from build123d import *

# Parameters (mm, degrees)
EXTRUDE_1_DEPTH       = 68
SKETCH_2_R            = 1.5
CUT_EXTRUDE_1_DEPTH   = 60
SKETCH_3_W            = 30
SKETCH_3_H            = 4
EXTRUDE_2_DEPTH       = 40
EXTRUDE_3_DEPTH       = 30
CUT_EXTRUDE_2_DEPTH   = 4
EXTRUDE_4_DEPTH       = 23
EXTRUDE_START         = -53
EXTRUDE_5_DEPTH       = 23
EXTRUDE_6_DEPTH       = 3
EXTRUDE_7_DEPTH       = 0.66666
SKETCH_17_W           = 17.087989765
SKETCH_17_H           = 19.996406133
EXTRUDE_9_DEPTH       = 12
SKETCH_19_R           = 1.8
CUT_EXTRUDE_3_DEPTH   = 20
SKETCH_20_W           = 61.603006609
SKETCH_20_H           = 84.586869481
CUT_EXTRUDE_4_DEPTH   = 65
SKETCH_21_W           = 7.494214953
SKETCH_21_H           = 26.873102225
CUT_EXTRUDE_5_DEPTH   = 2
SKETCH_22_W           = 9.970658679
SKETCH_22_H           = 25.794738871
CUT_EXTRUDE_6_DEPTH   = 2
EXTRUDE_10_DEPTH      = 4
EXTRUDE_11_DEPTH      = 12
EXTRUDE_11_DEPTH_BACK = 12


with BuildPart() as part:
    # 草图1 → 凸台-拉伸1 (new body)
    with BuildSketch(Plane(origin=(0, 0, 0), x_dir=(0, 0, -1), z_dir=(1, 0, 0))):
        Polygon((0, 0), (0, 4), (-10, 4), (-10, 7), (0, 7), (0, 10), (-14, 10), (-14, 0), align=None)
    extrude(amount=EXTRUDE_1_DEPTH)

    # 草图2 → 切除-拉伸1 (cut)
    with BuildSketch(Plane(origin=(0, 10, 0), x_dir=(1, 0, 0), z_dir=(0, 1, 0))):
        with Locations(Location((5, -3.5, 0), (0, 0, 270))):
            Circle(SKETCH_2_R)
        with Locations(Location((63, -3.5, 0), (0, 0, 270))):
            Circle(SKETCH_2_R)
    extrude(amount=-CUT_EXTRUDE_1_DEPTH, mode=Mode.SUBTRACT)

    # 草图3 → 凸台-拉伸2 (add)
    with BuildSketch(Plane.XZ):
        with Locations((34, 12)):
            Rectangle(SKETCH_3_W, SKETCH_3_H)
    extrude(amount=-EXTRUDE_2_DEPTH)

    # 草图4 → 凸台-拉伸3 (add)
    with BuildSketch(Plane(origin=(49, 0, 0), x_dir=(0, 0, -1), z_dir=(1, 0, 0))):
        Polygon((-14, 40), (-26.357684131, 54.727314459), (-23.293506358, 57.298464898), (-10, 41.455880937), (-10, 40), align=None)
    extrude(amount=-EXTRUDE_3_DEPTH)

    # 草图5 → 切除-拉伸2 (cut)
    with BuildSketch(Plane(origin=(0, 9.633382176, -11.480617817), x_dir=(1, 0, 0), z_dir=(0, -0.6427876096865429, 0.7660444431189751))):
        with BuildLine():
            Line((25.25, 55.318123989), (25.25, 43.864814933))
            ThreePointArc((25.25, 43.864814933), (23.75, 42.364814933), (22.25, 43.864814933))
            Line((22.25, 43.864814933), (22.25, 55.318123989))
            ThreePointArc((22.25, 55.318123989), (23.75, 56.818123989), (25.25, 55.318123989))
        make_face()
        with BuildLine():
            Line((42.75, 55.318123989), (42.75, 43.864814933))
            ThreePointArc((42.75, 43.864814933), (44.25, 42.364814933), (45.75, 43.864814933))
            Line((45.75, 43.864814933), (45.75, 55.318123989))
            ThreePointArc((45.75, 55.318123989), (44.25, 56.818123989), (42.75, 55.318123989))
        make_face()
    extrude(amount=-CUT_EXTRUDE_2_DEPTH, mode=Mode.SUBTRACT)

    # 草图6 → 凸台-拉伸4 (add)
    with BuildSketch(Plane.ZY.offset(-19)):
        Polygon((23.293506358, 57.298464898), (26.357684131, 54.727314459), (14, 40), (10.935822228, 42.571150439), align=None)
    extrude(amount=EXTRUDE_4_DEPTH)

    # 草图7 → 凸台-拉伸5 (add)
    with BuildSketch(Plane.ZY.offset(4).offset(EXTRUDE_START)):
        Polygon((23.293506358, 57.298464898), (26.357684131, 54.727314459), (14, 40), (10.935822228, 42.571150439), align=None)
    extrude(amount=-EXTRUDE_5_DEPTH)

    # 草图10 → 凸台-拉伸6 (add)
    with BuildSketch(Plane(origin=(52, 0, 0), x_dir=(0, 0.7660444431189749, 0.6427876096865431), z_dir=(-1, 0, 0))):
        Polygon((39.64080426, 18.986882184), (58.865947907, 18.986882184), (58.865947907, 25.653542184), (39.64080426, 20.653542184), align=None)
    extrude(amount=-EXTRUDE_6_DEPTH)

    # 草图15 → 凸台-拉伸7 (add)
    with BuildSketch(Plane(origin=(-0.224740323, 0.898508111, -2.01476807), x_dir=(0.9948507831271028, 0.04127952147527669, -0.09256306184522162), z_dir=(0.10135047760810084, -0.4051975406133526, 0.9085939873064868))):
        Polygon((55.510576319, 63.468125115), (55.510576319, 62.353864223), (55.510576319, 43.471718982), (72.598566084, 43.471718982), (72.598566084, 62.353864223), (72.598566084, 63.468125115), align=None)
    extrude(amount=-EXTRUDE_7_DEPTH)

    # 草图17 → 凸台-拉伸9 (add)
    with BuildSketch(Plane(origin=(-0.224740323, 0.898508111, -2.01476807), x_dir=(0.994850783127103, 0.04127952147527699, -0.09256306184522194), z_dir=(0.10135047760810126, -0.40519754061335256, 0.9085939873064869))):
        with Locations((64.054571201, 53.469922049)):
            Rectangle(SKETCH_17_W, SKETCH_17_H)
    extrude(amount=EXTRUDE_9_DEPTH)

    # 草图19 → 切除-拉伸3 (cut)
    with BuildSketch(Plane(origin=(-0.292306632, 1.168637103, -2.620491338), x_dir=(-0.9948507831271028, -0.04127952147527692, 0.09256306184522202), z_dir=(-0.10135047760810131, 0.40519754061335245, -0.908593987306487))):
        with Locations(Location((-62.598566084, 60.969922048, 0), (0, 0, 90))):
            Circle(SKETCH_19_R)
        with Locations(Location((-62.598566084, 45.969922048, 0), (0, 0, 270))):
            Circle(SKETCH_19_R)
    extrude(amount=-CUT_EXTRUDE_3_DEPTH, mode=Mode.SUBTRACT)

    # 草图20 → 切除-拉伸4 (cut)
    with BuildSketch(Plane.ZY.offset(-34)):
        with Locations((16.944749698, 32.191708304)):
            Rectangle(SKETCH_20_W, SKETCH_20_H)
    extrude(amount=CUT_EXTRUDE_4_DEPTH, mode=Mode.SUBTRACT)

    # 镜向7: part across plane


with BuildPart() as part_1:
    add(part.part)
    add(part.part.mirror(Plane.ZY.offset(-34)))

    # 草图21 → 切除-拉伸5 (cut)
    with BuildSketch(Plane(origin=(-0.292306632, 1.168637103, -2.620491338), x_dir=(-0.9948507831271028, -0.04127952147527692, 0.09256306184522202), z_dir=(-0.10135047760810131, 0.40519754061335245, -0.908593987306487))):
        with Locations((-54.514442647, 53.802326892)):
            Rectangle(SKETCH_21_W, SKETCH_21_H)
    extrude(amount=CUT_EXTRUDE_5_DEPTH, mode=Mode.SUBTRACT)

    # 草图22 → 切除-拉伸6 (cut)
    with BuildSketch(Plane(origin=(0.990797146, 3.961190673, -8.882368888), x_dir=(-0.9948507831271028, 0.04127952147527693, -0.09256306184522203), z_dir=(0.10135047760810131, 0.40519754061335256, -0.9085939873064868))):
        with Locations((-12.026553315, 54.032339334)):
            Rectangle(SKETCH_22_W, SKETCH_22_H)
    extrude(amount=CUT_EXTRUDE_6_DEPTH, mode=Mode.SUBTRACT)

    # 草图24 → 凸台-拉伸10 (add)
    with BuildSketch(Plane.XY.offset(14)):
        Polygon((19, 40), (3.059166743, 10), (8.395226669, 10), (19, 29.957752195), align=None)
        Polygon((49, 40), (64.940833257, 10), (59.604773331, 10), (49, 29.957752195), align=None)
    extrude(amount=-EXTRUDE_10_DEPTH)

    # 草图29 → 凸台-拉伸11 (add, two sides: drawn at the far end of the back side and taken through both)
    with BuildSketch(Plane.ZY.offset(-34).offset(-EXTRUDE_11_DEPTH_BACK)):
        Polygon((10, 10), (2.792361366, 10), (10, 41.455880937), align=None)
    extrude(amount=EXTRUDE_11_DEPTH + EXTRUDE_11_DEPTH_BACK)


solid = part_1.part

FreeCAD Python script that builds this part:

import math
import FreeCAD as App
import Part
import Sketcher

V = App.Vector
Q = App.Units.Quantity

doc = App.newDocument("Part")
body = doc.addObject("PartDesign::Body", "Body")

sketch1 = body.newObject("Sketcher::SketchObject", "Sketch")
sketch1.AttachmentSupport = (doc.getObject("YZ_Plane"), [""])
sketch1.MapMode = "FlatFace"
sketch1.addGeometry(Part.LineSegment(V(0, 0, 0), V(4, 0, 0)), False)
sketch1.addGeometry(Part.LineSegment(V(4, 0, 0), V(4, 10, 0)), False)
sketch1.addGeometry(Part.LineSegment(V(4, 10, 0), V(7, 10, 0)), False)
sketch1.addGeometry(Part.LineSegment(V(7, 10, 0), V(7, 0, 0)), False)
sketch1.addGeometry(Part.LineSegment(V(7, 0, 0), V(10, 0, 0)), False)
sketch1.addGeometry(Part.LineSegment(V(10, 0, 0), V(10, 14, 0)), False)
sketch1.addGeometry(Part.LineSegment(V(10, 14, 0), V(0, 14, 0)), False)
sketch1.addGeometry(Part.LineSegment(V(0, 14, 0), V(0, 0, 0)), False)
sketch1.addConstraint(Sketcher.Constraint("Coincident", 0, 2, 1, 1))
sketch1.addConstraint(Sketcher.Constraint("Coincident", 1, 2, 2, 1))
sketch1.addConstraint(Sketcher.Constraint("Coincident", 2, 2, 3, 1))
sketch1.addConstraint(Sketcher.Constraint("Coincident", 3, 2, 4, 1))
sketch1.addConstraint(Sketcher.Constraint("Coincident", 4, 2, 5, 1))
sketch1.addConstraint(Sketcher.Constraint("Coincident", 5, 2, 6, 1))
sketch1.addConstraint(Sketcher.Constraint("Coincident", 6, 2, 7, 1))
sketch1.addConstraint(Sketcher.Constraint("Coincident", 7, 2, 0, 1))
sketch1.addConstraint(Sketcher.Constraint("Horizontal", 0))
sketch1.addConstraint(Sketcher.Constraint("Vertical", 1))
sketch1.addConstraint(Sketcher.Constraint("Horizontal", 2))
sketch1.addConstraint(Sketcher.Constraint("Vertical", 3))
sketch1.addConstraint(Sketcher.Constraint("Horizontal", 4))
sketch1.addConstraint(Sketcher.Constraint("Vertical", 5))
sketch1.addConstraint(Sketcher.Constraint("Horizontal", 6))
sketch1.addConstraint(Sketcher.Constraint("Vertical", 7))
sketch1.addConstraint(Sketcher.Constraint("Coincident", 7, 2, -1, 1))
sketch1.addConstraint(Sketcher.Constraint("PointOnObject", 3, 2, -1))
sketch1.addConstraint(Sketcher.Constraint("Equal", 2, 4))
sketch1.addConstraint(Sketcher.Constraint("Equal", 6, 1))
sketch1.addConstraint(Sketcher.Constraint("DistanceX", 0, 1, 0, 2, 4.0))
sketch1.addConstraint(Sketcher.Constraint("DistanceX", 2, 1, 2, 2, 3.0))
sketch1.addConstraint(Sketcher.Constraint("DistanceY", 5, 1, 5, 2, 14.0))
pad1 = body.newObject("PartDesign::Pad", "Pad")
pad1.Profile = sketch1
pad1.Length = 68

sketch2 = body.newObject("Sketcher::SketchObject", "Sketch001")
sketch2.AttachmentSupport = (doc.getObject("XZ_Plane"), [""])
sketch2.MapMode = "FlatFace"
sketch2.AttachmentOffset = App.Placement(V(0, 0, -10), App.Rotation())
sketch2.addGeometry(Part.Circle(V(5, 3.5, 0), V(0, 0, 1), 1.5), False)
sketch2.addGeometry(Part.Circle(V(63, 3.5, 0), V(0, 0, 1), 1.5), False)
sketch2.addConstraint(Sketcher.Constraint("Equal", 0, 1))
sketch2.addConstraint(Sketcher.Constraint("Horizontal", 0, 3, 1, 3))
sketch2.addConstraint(Sketcher.Constraint("Diameter", 0, 3.0))
sketch2.addConstraint(Sketcher.Constraint("DistanceX", -1, 1, 0, 3, 5.0))
sketch2.addConstraint(Sketcher.Constraint("DistanceX", -1, 1, 1, 3, 63.0))
sketch2.addConstraint(Sketcher.Constraint("DistanceY", -1, 1, 0, 3, 3.5))
pocket1 = body.newObject("PartDesign::Pocket", "Pocket")
pocket1.Profile = sketch2
pocket1.Length = 60
pocket1.Reversed = True

sketch3 = body.newObject("Sketcher::SketchObject", "Sketch002")
sketch3.AttachmentSupport = (doc.getObject("XZ_Plane"), [""])
sketch3.MapMode = "FlatFace"
sketch3.addGeometry(Part.LineSegment(V(19, 14, 0), V(19, 10, 0)), False)
sketch3.addGeometry(Part.LineSegment(V(19, 10, 0), V(49, 10, 0)), False)
sketch3.addGeometry(Part.LineSegment(V(49, 10, 0), V(49, 14, 0)), False)
sketch3.addGeometry(Part.LineSegment(V(49, 14, 0), V(19, 14, 0)), False)
sketch3.addConstraint(Sketcher.Constraint("Coincident", 0, 2, 1, 1))
sketch3.addConstraint(Sketcher.Constraint("Coincident", 1, 2, 2, 1))
sketch3.addConstraint(Sketcher.Constraint("Coincident", 2, 2, 3, 1))
sketch3.addConstraint(Sketcher.Constraint("Coincident", 3, 2, 0, 1))
sketch3.addConstraint(Sketcher.Constraint("Vertical", 0))
sketch3.addConstraint(Sketcher.Constraint("Horizontal", 1))
sketch3.addConstraint(Sketcher.Constraint("Vertical", 2))
sketch3.addConstraint(Sketcher.Constraint("Horizontal", 3))
sketch3.addConstraint(Sketcher.Constraint("DistanceX", 1, 1, 1, 2, 30.0))
sketch3.addConstraint(Sketcher.Constraint("DistanceY", 0, 2, 0, 1, 4.0))
sketch3.addConstraint(Sketcher.Constraint("DistanceX", -1, 1, 0, 2, 19.0))
sketch3.addConstraint(Sketcher.Constraint("DistanceY", -1, 1, 0, 2, 10.0))
pad2 = body.newObject("PartDesign::Pad", "Pad001")
pad2.Profile = sketch3
pad2.Length = 40
pad2.Reversed = True

sketch4 = body.newObject("Sketcher::SketchObject", "Sketch003")
sketch4.AttachmentSupport = (doc.getObject("YZ_Plane"), [""])
sketch4.MapMode = "FlatFace"
sketch4.AttachmentOffset = App.Placement(V(0, 0, 49), App.Rotation())
sketch4.addGeometry(Part.LineSegment(V(54.7, 26.4, 0), V(40, 14, 0)), False)
sketch4.addGeometry(Part.LineSegment(V(40, 14, 0), V(40, 10, 0)), False)
sketch4.addGeometry(Part.LineSegment(V(40, 10, 0), V(41.5, 10, 0)), False)
sketch4.addGeometry(Part.LineSegment(V(41.5, 10, 0), V(57.3, 23.3, 0)), False)
sketch4.addGeometry(Part.LineSegment(V(57.3, 23.3, 0), V(54.7, 26.4, 0)), False)
sketch4.addConstraint(Sketcher.Constraint("Coincident", 0, 2, 1, 1))
sketch4.addConstraint(Sketcher.Constraint("Coincident", 1, 2, 2, 1))
sketch4.addConstraint(Sketcher.Constraint("Coincident", 2, 2, 3, 1))
sketch4.addConstraint(Sketcher.Constraint("Coincident", 3, 2, 4, 1))
sketch4.addConstraint(Sketcher.Constraint("Coincident", 4, 2, 0, 1))
sketch4.addConstraint(Sketcher.Constraint("Vertical", 1))
sketch4.addConstraint(Sketcher.Constraint("Horizontal", 2))
sketch4.addConstraint(Sketcher.Constraint("Parallel", 0, 3))
sketch4.addConstraint(Sketcher.Constraint("Perpendicular", 3, 4))
sketch4.addConstraint(Sketcher.Constraint("DistanceY", 1, 2, 1, 1, 4.0))
sketch4.addConstraint(Sketcher.Constraint("Angle", 0, Q("-140 deg")))
sketch4.addConstraint(Sketcher.Constraint("Distance", 4, 4.0))
sketch4.addConstraint(Sketcher.Constraint("DistanceX", -1, 1, 0, 2, 40.0))
sketch4.addConstraint(Sketcher.Constraint("DistanceY", -1, 1, 0, 2, 14.0))
sketch4.addConstraint(Sketcher.Constraint("Distance", 0, 19.225144))
pad3 = body.newObject("PartDesign::Pad", "Pad002")
pad3.Profile = sketch4
pad3.Length = 30
pad3.Reversed = True

sketch5 = body.newObject("Sketcher::SketchObject", "Sketch004")
sketch5.Placement = App.Placement(V(0, 9.633382, -11.480618), App.Rotation(V(1, 0, 0), V(0, 0.766044443, 0.64278761), V(0, -0.64278761, 0.766044443), "ZXY"))
sketch5.addGeometry(Part.LineSegment(V(25.2, 43.9, 0), V(25.2, 55.3, 0)), False)
sketch5.addGeometry(Part.ArcOfCircle(Part.Circle(V(23.8, 55.3, 0), V(0, 0, 1), 1.5), math.radians(0), math.radians(180)), False)
sketch5.addGeometry(Part.LineSegment(V(22.2, 55.3, 0), V(22.2, 43.9, 0)), False)
sketch5.addGeometry(Part.ArcOfCircle(Part.Circle(V(23.8, 43.9, 0), V(0, 0, 1), 1.5), math.radians(180), math.radians(360)), False)
sketch5.addGeometry(Part.LineSegment(V(42.8, 55.3, 0), V(42.8, 43.9, 0)), False)
sketch5.addGeometry(Part.ArcOfCircle(Part.Circle(V(44.2, 43.9, 0), V(0, 0, 1), 1.5), math.radians(180), math.radians(360)), False)
sketch5.addGeometry(Part.LineSegment(V(45.8, 43.9, 0), V(45.8, 55.3, 0)), False)
sketch5.addGeometry(Part.ArcOfCircle(Part.Circle(V(44.2, 55.3, 0), V(0, 0, 1), 1.5), math.radians(0), math.radians(180)), False)
sketch5.addConstraint(Sketcher.Constraint("Tangent", 0, 2, 1, 1))
sketch5.addConstraint(Sketcher.Constraint("Tangent", 1, 2, 2, 1))
sketch5.addConstraint(Sketcher.Constraint("Tangent", 2, 2, 3, 1))
sketch5.addConstraint(Sketcher.Constraint("Tangent", 3, 2, 0, 1))
sketch5.addConstraint(Sketcher.Constraint("Tangent", 4, 2, 5, 1))
sketch5.addConstraint(Sketcher.Constraint("Tangent", 5, 2, 6, 1))
sketch5.addConstraint(Sketcher.Constraint("Tangent", 6, 2, 7, 1))
sketch5.addConstraint(Sketcher.Constraint("Tangent", 7, 2, 4, 1))
sketch5.addConstraint(Sketcher.Constraint("Vertical", 0))
sketch5.addConstraint(Sketcher.Constraint("Vertical", 2))
sketch5.addConstraint(Sketcher.Constraint("Vertical", 4))
sketch5.addConstraint(Sketcher.Constraint("Vertical", 6))
sketch5.addConstraint(Sketcher.Constraint("Equal", 3, 5))
sketch5.addConstraint(Sketcher.Constraint("Horizontal", 3, 3, 5, 3))
sketch5.addConstraint(Sketcher.Constraint("Horizontal", 1, 3, 7, 3))
sketch5.addConstraint(Sketcher.Constraint("Radius", 1, 1.5))
sketch5.addConstraint(Sketcher.Constraint("DistanceX", 0, 2, 7, 3, 19.0))
sketch5.addConstraint(Sketcher.Constraint("DistanceX", -1, 1, 1, 3, 23.75))
sketch5.addConstraint(Sketcher.Constraint("DistanceY", 0, 1, 0, 2, 11.453309))
sketch5.addConstraint(Sketcher.Constraint("DistanceY", -1, 1, 1, 3, 55.318124))
pocket2 = body.newObject("PartDesign::Pocket", "Pocket001")
pocket2.Profile = sketch5
pocket2.Length = 4

sketch6 = body.newObject("Sketcher::SketchObject", "Sketch005")
sketch6.AttachmentSupport = (doc.getObject("YZ_Plane"), [""])
sketch6.MapMode = "FlatFace"
sketch6.AttachmentOffset = App.Placement(V(0, 0, 19), App.Rotation())
sketch6.addGeometry(Part.LineSegment(V(54.7, 26.4, 0), V(57.3, 23.3, 0)), False)
sketch6.addGeometry(Part.LineSegment(V(57.3, 23.3, 0), V(42.6, 10.9, 0)), False)
sketch6.addGeometry(Part.LineSegment(V(42.6, 10.9, 0), V(40, 14, 0)), False)
sketch6.addGeometry(Part.LineSegment(V(40, 14, 0), V(54.7, 26.4, 0)), False)
sketch6.addConstraint(Sketcher.Constraint("Coincident", 0, 2, 1, 1))
sketch6.addConstraint(Sketcher.Constraint("Coincident", 1, 2, 2, 1))
sketch6.addConstraint(Sketcher.Constraint("Coincident", 2, 2, 3, 1))
sketch6.addConstraint(Sketcher.Constraint("Coincident", 3, 2, 0, 1))
sketch6.addConstraint(Sketcher.Constraint("Perpendicular", 0, 1))
sketch6.addConstraint(Sketcher.Constraint("Perpendicular", 1, 2))
sketch6.addConstraint(Sketcher.Constraint("Perpendicular", 2, 3))
sketch6.addConstraint(Sketcher.Constraint("Angle", 0, Q("-50 deg")))
sketch6.addConstraint(Sketcher.Constraint("Distance", 0, 4.0))
sketch6.addConstraint(Sketcher.Constraint("DistanceX", -1, 1, 2, 2, 40.0))
sketch6.addConstraint(Sketcher.Constraint("DistanceY", -1, 1, 2, 2, 14.0))
sketch6.addConstraint(Sketcher.Constraint("DistanceY", 1, 2, 3, 2, 15.421862))
pad4 = body.newObject("PartDesign::Pad", "Pad003")
pad4.Profile = sketch6
pad4.Length = 23
pad4.Reversed = True

sketch7 = body.newObject("Sketcher::SketchObject", "Sketch006")
sketch7.AttachmentSupport = (doc.getObject("YZ_Plane"), [""])
sketch7.MapMode = "FlatFace"
sketch7.AttachmentOffset = App.Placement(V(0, 0, 49), App.Rotation())
sketch7.addGeometry(Part.LineSegment(V(54.7, 26.4, 0), V(57.3, 23.3, 0)), False)
sketch7.addGeometry(Part.LineSegment(V(57.3, 23.3, 0), V(42.6, 10.9, 0)), False)
sketch7.addGeometry(Part.LineSegment(V(42.6, 10.9, 0), V(40, 14, 0)), False)
sketch7.addGeometry(Part.LineSegment(V(40, 14, 0), V(54.7, 26.4, 0)), False)
sketch7.addConstraint(Sketcher.Constraint("Coincident", 0, 2, 1, 1))
sketch7.addConstraint(Sketcher.Constraint("Coincident", 1, 2, 2, 1))
sketch7.addConstraint(Sketcher.Constraint("Coincident", 2, 2, 3, 1))
sketch7.addConstraint(Sketcher.Constraint("Coincident", 3, 2, 0, 1))
sketch7.addConstraint(Sketcher.Constraint("Perpendicular", 0, 1))
sketch7.addConstraint(Sketcher.Constraint("Perpendicular", 1, 2))
sketch7.addConstraint(Sketcher.Constraint("Perpendicular", 2, 3))
sketch7.addConstraint(Sketcher.Constraint("Angle", 0, Q("-50 deg")))
sketch7.addConstraint(Sketcher.Constraint("Distance", 0, 4.0))
sketch7.addConstraint(Sketcher.Constraint("DistanceX", -1, 1, 2, 2, 40.0))
sketch7.addConstraint(Sketcher.Constraint("DistanceY", -1, 1, 2, 2, 14.0))
sketch7.addConstraint(Sketcher.Constraint("DistanceY", 1, 2, 3, 2, 15.421862))
pad5 = body.newObject("PartDesign::Pad", "Pad004")
pad5.Profile = sketch7
pad5.Length = 23

sketch8 = body.newObject("Sketcher::SketchObject", "Sketch007")
sketch8.AttachmentSupport = (doc.getObject("YZ_Plane"), [""])
sketch8.MapMode = "FlatFace"
sketch8.AttachmentOffset = App.Placement(V(0, 0, 52), App.Rotation())
sketch8.addGeometry(Part.LineSegment(V(42.6, 10.9, 0), V(57.3, 23.3, 0)), False)
sketch8.addGeometry(Part.LineSegment(V(57.3, 23.3, 0), V(61.6, 18.2, 0)), False)
sketch8.addGeometry(Part.LineSegment(V(61.6, 18.2, 0), V(43.6, 9.7, 0)), False)
sketch8.addGeometry(Part.LineSegment(V(43.6, 9.7, 0), V(42.6, 10.9, 0)), False)
sketch8.addConstraint(Sketcher.Constraint("Coincident", 0, 2, 1, 1))
sketch8.addConstraint(Sketcher.Constraint("Coincident", 1, 2, 2, 1))
sketch8.addConstraint(Sketcher.Constraint("Coincident", 2, 2, 3, 1))
sketch8.addConstraint(Sketcher.Constraint("Coincident", 3, 2, 0, 1))
sketch8.addConstraint(Sketcher.Constraint("Perpendicular", 0, 1))
sketch8.addConstraint(Sketcher.Constraint("Parallel", 1, 3))
sketch8.addConstraint(Sketcher.Constraint("Angle", 0, Q("40 deg")))
sketch8.addConstraint(Sketcher.Constraint("Distance", 1, 6.66666))
sketch8.addConstraint(Sketcher.Constraint("Distance", 3, 1.66666))
sketch8.addConstraint(Sketcher.Constraint("DistanceX", -1, 1, 1, 2, 61.583711))
sketch8.addConstraint(Sketcher.Constraint("DistanceY", -1, 1, 1, 2, 18.186549))
sketch8.addConstraint(Sketcher.Constraint("DistanceX", -1, 1, 2, 2, 43.642459))
pad6 = body.newObject("PartDesign::Pad", "Pad005")
pad6.Profile = sketch8
pad6.Length = 3

sketch9 = body.newObject("Sketcher::SketchObject", "Sketch008")
sketch9.Placement = App.Placement(V(-0.22474, 0.898508, -2.014768), App.Rotation(V(0.994850783, 0.041279521, -0.092563062), V(0.000000001, 0.91329675, 0.40729479), V(0.101350478, -0.405197541, 0.908593987), "ZXY"))
sketch9.addGeometry(Part.LineSegment(V(56, 63, 0), V(56, 43, 0)), False)
sketch9.addGeometry(Part.LineSegment(V(56, 43, 0), V(73, 43, 0)), False)
sketch9.addGeometry(Part.LineSegment(V(73, 43, 0), V(73, 63, 0)), False)
sketch9.addGeometry(Part.LineSegment(V(73, 63, 0), V(56, 63, 0)), False)
sketch9.addConstraint(Sketcher.Constraint("Coincident", 0, 2, 1, 1))
sketch9.addConstraint(Sketcher.Constraint("Coincident", 1, 2, 2, 1))
sketch9.addConstraint(Sketcher.Constraint("Coincident", 2, 2, 3, 1))
sketch9.addConstraint(Sketcher.Constraint("Coincident", 3, 2, 0, 1))
sketch9.addConstraint(Sketcher.Constraint("Vertical", 0))
sketch9.addConstraint(Sketcher.Constraint("Horizontal", 1))
sketch9.addConstraint(Sketcher.Constraint("Vertical", 2))
sketch9.addConstraint(Sketcher.Constraint("Horizontal", 3))
sketch9.addConstraint(Sketcher.Constraint("DistanceX", 1, 1, 1, 2, 17.08799))
sketch9.addConstraint(Sketcher.Constraint("DistanceY", 0, 2, 0, 1, 19.996406))
sketch9.addConstraint(Sketcher.Constraint("DistanceY", -1, 1, 0, 2, 43.471719))
sketch9.addConstraint(Sketcher.Constraint("DistanceX", -1, 1, 0, 2, 55.510576))
pad7 = body.newObject("PartDesign::Pad", "Pad006")
pad7.Profile = sketch9
pad7.Length = 0.66666
pad7.Reversed = True

sketch10 = body.newObject("Sketcher::SketchObject", "Sketch009")
sketch10.Placement = App.Placement(V(-0.22474, 0.898508, -2.014768), App.Rotation(V(0.994850783, 0.041279521, -0.092563062), V(0.000000001, 0.91329675, 0.40729479), V(0.101350478, -0.405197541, 0.908593987), "ZXY"))
sketch10.addGeometry(Part.LineSegment(V(56, 63, 0), V(56, 43, 0)), False)
sketch10.addGeometry(Part.LineSegment(V(56, 43, 0), V(73, 43, 0)), False)
sketch10.addGeometry(Part.LineSegment(V(73, 43, 0), V(73, 63, 0)), False)
sketch10.addGeometry(Part.LineSegment(V(73, 63, 0), V(56, 63, 0)), False)
sketch10.addConstraint(Sketcher.Constraint("Coincident", 0, 2, 1, 1))
sketch10.addConstraint(Sketcher.Constraint("Coincident", 1, 2, 2, 1))
sketch10.addConstraint(Sketcher.Constraint("Coincident", 2, 2, 3, 1))
sketch10.addConstraint(Sketcher.Constraint("Coincident", 3, 2, 0, 1))
sketch10.addConstraint(Sketcher.Constraint("Vertical", 0))
sketch10.addConstraint(Sketcher.Constraint("Horizontal", 1))
sketch10.addConstraint(Sketcher.Constraint("Vertical", 2))
sketch10.addConstraint(Sketcher.Constraint("Horizontal", 3))
sketch10.addConstraint(Sketcher.Constraint("DistanceX", 1, 1, 1, 2, 17.08799))
sketch10.addConstraint(Sketcher.Constraint("DistanceY", 0, 2, 0, 1, 19.996406))
sketch10.addConstraint(Sketcher.Constraint("DistanceY", -1, 1, 0, 2, 43.471719))
sketch10.addConstraint(Sketcher.Constraint("DistanceX", -1, 1, 0, 2, 55.510576))
pad8 = body.newObject("PartDesign::Pad", "Pad007")
pad8.Profile = sketch10
pad8.Length = 12

sketch11 = body.newObject("Sketcher::SketchObject", "Sketch010")
sketch11.Placement = App.Placement(V(-0.292307, 1.168637, -2.620491), App.Rotation(V(-0.994850783, -0.041279521, 0.092563062), V(0.000000001, 0.91329675, 0.40729479), V(-0.101350478, 0.405197541, -0.908593987), "ZXY"))
sketch11.addGeometry(Part.Circle(V(-62.6, 61, 0), V(0, 0, 1), 1.8), False)
sketch11.addGeometry(Part.Circle(V(-62.6, 46, 0), V(0, 0, 1), 1.8), False)
sketch11.addConstraint(Sketcher.Constraint("Equal", 0, 1))
sketch11.addConstraint(Sketcher.Constraint("Vertical", 0, 3, 1, 3))
sketch11.addConstraint(Sketcher.Constraint("Diameter", 0, 3.6))
sketch11.addConstraint(Sketcher.Constraint("DistanceY", 1, 3, 0, 3, 15.0))
sketch11.addConstraint(Sketcher.Constraint("DistanceX", 0, 3, -1, 1, 62.598566))
sketch11.addConstraint(Sketcher.Constraint("DistanceY", -1, 1, 0, 3, 60.969922))
pocket3 = body.newObject("PartDesign::Pocket", "Pocket002")
pocket3.Profile = sketch11
pocket3.Length = 20

sketch12 = body.newObject("Sketcher::SketchObject", "Sketch011")
sketch12.AttachmentSupport = (doc.getObject("YZ_Plane"), [""])
sketch12.MapMode = "FlatFace"
sketch12.AttachmentOffset = App.Placement(V(0, 0, 34), App.Rotation())
sketch12.addGeometry(Part.LineSegment(V(74, -14, 0), V(-10, -14, 0)), False)
sketch12.addGeometry(Part.LineSegment(V(-10, -14, 0), V(-10, 48, 0)), False)
sketch12.addGeometry(Part.LineSegment(V(-10, 48, 0), V(74, 48, 0)), False)
sketch12.addGeometry(Part.LineSegment(V(74, 48, 0), V(74, -14, 0)), False)
sketch12.addConstraint(Sketcher.Constraint("Coincident", 0, 2, 1, 1))
sketch12.addConstraint(Sketcher.Constraint("Coincident", 1, 2, 2, 1))
sketch12.addConstraint(Sketcher.Constraint("Coincident", 2, 2, 3, 1))
sketch12.addConstraint(Sketcher.Constraint("Coincident", 3, 2, 0, 1))
sketch12.addConstraint(Sketcher.Constraint("Horizontal", 0))
sketch12.addConstraint(Sketcher.Constraint("Vertical", 1))
sketch12.addConstraint(Sketcher.Constraint("Horizontal", 2))
sketch12.addConstraint(Sketcher.Constraint("Vertical", 3))
sketch12.addConstraint(Sketcher.Constraint("DistanceX", 0, 2, 0, 1, 84.586869))
sketch12.addConstraint(Sketcher.Constraint("DistanceY", 1, 1, 1, 2, 61.603007))
sketch12.addConstraint(Sketcher.Constraint("DistanceX", 0, 2, -1, 1, 10.101726))
sketch12.addConstraint(Sketcher.Constraint("DistanceY", 0, 2, -1, 1, 13.856754))
pocket4 = body.newObject("PartDesign::Pocket", "Pocket003")
pocket4.Profile = sketch12
pocket4.Length = 65
body2 = doc.addObject("PartDesign::Body", "Body001")
doc.recompute()

body2.BaseFeature = body
doc.recompute()

mirroring = doc.addObject("Part::Mirroring", "Mirroring")
mirroring.Source = body
mirroring.Base = V(34, 0, 0)
mirroring.Normal = V(-1, 0, 0)
body3 = doc.addObject("PartDesign::Body", "Body002")
body3.BaseFeature = mirroring
boolean = body2.newObject("PartDesign::Boolean", "Boolean")
boolean.Type = "Fuse"
boolean.addObjects([body3])
doc.recompute()

sketch13 = body2.newObject("Sketcher::SketchObject", "Sketch012")
sketch13.Placement = App.Placement(V(-0.292307, 1.168637, -2.620491), App.Rotation(V(-0.994850783, -0.041279521, 0.092563062), V(0.000000001, 0.91329675, 0.40729479), V(-0.101350478, 0.405197541, -0.908593987), "ZXY"))
sketch13.addGeometry(Part.LineSegment(V(-58, 67, 0), V(-58, 40, 0)), False)
sketch13.addGeometry(Part.LineSegment(V(-58, 40, 0), V(-51, 40, 0)), False)
sketch13.addGeometry(Part.LineSegment(V(-51, 40, 0), V(-51, 67, 0)), False)
sketch13.addGeometry(Part.LineSegment(V(-51, 67, 0), V(-58, 67, 0)), False)
sketch13.addConstraint(Sketcher.Constraint("Coincident", 0, 2, 1, 1))
sketch13.addConstraint(Sketcher.Constraint("Coincident", 1, 2, 2, 1))
sketch13.addConstraint(Sketcher.Constraint("Coincident", 2, 2, 3, 1))
sketch13.addConstraint(Sketcher.Constraint("Coincident", 3, 2, 0, 1))
sketch13.addConstraint(Sketcher.Constraint("Vertical", 0))
sketch13.addConstraint(Sketcher.Constraint("Horizontal", 1))
sketch13.addConstraint(Sketcher.Constraint("Vertical", 2))
sketch13.addConstraint(Sketcher.Constraint("Horizontal", 3))
sketch13.addConstraint(Sketcher.Constraint("DistanceX", 1, 1, 1, 2, 7.494215))
sketch13.addConstraint(Sketcher.Constraint("DistanceY", 0, 2, 0, 1, 26.873102))
sketch13.addConstraint(Sketcher.Constraint("DistanceX", 0, 2, -1, 1, 58.26155))
sketch13.addConstraint(Sketcher.Constraint("DistanceY", -1, 1, 0, 2, 40.365776))
pocket5 = body2.newObject("PartDesign::Pocket", "Pocket004")
pocket5.Profile = sketch13
pocket5.Length = 2
pocket5.Reversed = True

sketch14 = body2.newObject("Sketcher::SketchObject", "Sketch013")
sketch14.Placement = App.Placement(V(0.990797, 3.961191, -8.882369), App.Rotation(V(-0.994850783, 0.041279521, -0.092563062), V(-0.000000001, 0.91329675, 0.40729479), V(0.101350478, 0.405197541, -0.908593987), "ZXY"))
sketch14.addGeometry(Part.LineSegment(V(-17, 67, 0), V(-17, 41, 0)), False)
sketch14.addGeometry(Part.LineSegment(V(-17, 41, 0), V(-7, 41, 0)), False)
sketch14.addGeometry(Part.LineSegment(V(-7, 41, 0), V(-7, 67, 0)), False)
sketch14.addGeometry(Part.LineSegment(V(-7, 67, 0), V(-17, 67, 0)), False)
sketch14.addConstraint(Sketcher.Constraint("Coincident", 0, 2, 1, 1))
sketch14.addConstraint(Sketcher.Constraint("Coincident", 1, 2, 2, 1))
sketch14.addConstraint(Sketcher.Constraint("Coincident", 2, 2, 3, 1))
sketch14.addConstraint(Sketcher.Constraint("Coincident", 3, 2, 0, 1))
sketch14.addConstraint(Sketcher.Constraint("Vertical", 0))
sketch14.addConstraint(Sketcher.Constraint("Horizontal", 1))
sketch14.addConstraint(Sketcher.Constraint("Vertical", 2))
sketch14.addConstraint(Sketcher.Constraint("Horizontal", 3))
sketch14.addConstraint(Sketcher.Constraint("DistanceX", 1, 1, 1, 2, 9.970659))
sketch14.addConstraint(Sketcher.Constraint("DistanceY", 0, 2, 0, 1, 25.794739))
sketch14.addConstraint(Sketcher.Constraint("DistanceY", -1, 1, 0, 2, 41.13497))
sketch14.addConstraint(Sketcher.Constraint("DistanceX", 0, 2, -1, 1, 17.011883))
pocket6 = body2.newObject("PartDesign::Pocket", "Pocket005")
pocket6.Profile = sketch14
pocket6.Length = 2
pocket6.Reversed = True

sketch15 = body2.newObject("Sketcher::SketchObject", "Sketch014")
sketch15.AttachmentSupport = (doc.getObject("XY_Plane001"), [""])
sketch15.MapMode = "FlatFace"
sketch15.AttachmentOffset = App.Placement(V(0, 0, 14), App.Rotation())
sketch15.addGeometry(Part.LineSegment(V(19, 40, 0), V(3, 10, 0)), False)
sketch15.addGeometry(Part.LineSegment(V(3, 10, 0), V(8, 10, 0)), False)
sketch15.addGeometry(Part.LineSegment(V(8, 10, 0), V(19, 30, 0)), False)
sketch15.addGeometry(Part.LineSegment(V(19, 30, 0), V(19, 40, 0)), False)
sketch15.addGeometry(Part.LineSegment(V(65, 10, 0), V(49, 40, 0)), False)
sketch15.addGeometry(Part.LineSegment(V(49, 40, 0), V(49, 30, 0)), False)
sketch15.addGeometry(Part.LineSegment(V(49, 30, 0), V(60, 10, 0)), False)
sketch15.addGeometry(Part.LineSegment(V(60, 10, 0), V(65, 10, 0)), False)
sketch15.addConstraint(Sketcher.Constraint("Coincident", 0, 2, 1, 1))
sketch15.addConstraint(Sketcher.Constraint("Coincident", 1, 2, 2, 1))
sketch15.addConstraint(Sketcher.Constraint("Coincident", 2, 2, 3, 1))
sketch15.addConstraint(Sketcher.Constraint("Coincident", 3, 2, 0, 1))
sketch15.addConstraint(Sketcher.Constraint("Coincident", 4, 2, 5, 1))
sketch15.addConstraint(Sketcher.Constraint("Coincident", 5, 2, 6, 1))
sketch15.addConstraint(Sketcher.Constraint("Coincident", 6, 2, 7, 1))
sketch15.addConstraint(Sketcher.Constraint("Coincident", 7, 2, 4, 1))
sketch15.addConstraint(Sketcher.Constraint("Horizontal", 1))
sketch15.addConstraint(Sketcher.Constraint("Vertical", 3))
sketch15.addConstraint(Sketcher.Constraint("Vertical", 5))
sketch15.addConstraint(Sketcher.Constraint("Horizontal", 7))
sketch15.addConstraint(Sketcher.Constraint("Parallel", 0, 2))
sketch15.addConstraint(Sketcher.Constraint("Parallel", 4, 6))
sketch15.addConstraint(Sketcher.Constraint("Horizontal", 3, 2, 4, 2))
sketch15.addConstraint(Sketcher.Constraint("Horizontal", 2, 2, 5, 2))
sketch15.addConstraint(Sketcher.Constraint("Horizontal", 1, 2, 6, 2))
sketch15.addConstraint(Sketcher.Constraint("Equal", 1, 7))
sketch15.addConstraint(Sketcher.Constraint("DistanceY", -1, 1, 0, 2, 10.0))
sketch15.addConstraint(Sketcher.Constraint("DistanceX", -1, 1, 2, 2, 19.0))
sketch15.addConstraint(Sketcher.Constraint("DistanceY", -1, 1, 3, 2, 40.0))
sketch15.addConstraint(Sketcher.Constraint("DistanceX", -1, 1, 4, 2, 49.0))
sketch15.addConstraint(Sketcher.Constraint("DistanceX", 1, 1, 1, 2, 5.33606))
sketch15.addConstraint(Sketcher.Constraint("Distance", 2, 22.60029))
pad9 = body2.newObject("PartDesign::Pad", "Pad008")
pad9.Profile = sketch15
pad9.Length = 4
pad9.Reversed = True

sketch16 = body2.newObject("Sketcher::SketchObject", "Sketch015")
sketch16.AttachmentSupport = (doc.getObject("YZ_Plane001"), [""])
sketch16.MapMode = "FlatFace"
sketch16.AttachmentOffset = App.Placement(V(0, 0, 34), App.Rotation())
sketch16.addGeometry(Part.LineSegment(V(10, 3, 0), V(10, 10, 0)), False)
sketch16.addGeometry(Part.LineSegment(V(10, 10, 0), V(41, 10, 0)), False)
sketch16.addGeometry(Part.LineSegment(V(41, 10, 0), V(10, 3, 0)), False)
sketch16.addConstraint(Sketcher.Constraint("Coincident", 0, 2, 1, 1))
sketch16.addConstraint(Sketcher.Constraint("Coincident", 1, 2, 2, 1))
sketch16.addConstraint(Sketcher.Constraint("Coincident", 2, 2, 0, 1))
sketch16.addConstraint(Sketcher.Constraint("Vertical", 0))
sketch16.addConstraint(Sketcher.Constraint("Horizontal", 1))
sketch16.addConstraint(Sketcher.Constraint("DistanceX", -1, 1, 0, 2, 10.0))
sketch16.addConstraint(Sketcher.Constraint("DistanceY", -1, 1, 0, 2, 10.0))
sketch16.addConstraint(Sketcher.Constraint("DistanceX", 1, 1, 1, 2, 31.455881))
sketch16.addConstraint(Sketcher.Constraint("DistanceY", 0, 1, 0, 2, 7.207639))
pad10 = body2.newObject("PartDesign::Pad", "Pad009")
pad10.Profile = sketch16
pad10.Type = "TwoLengths"
pad10.Length = 12
pad10.Length2 = 12
pad10.Reversed = True
mirroring.Visibility = False

doc.recompute()
